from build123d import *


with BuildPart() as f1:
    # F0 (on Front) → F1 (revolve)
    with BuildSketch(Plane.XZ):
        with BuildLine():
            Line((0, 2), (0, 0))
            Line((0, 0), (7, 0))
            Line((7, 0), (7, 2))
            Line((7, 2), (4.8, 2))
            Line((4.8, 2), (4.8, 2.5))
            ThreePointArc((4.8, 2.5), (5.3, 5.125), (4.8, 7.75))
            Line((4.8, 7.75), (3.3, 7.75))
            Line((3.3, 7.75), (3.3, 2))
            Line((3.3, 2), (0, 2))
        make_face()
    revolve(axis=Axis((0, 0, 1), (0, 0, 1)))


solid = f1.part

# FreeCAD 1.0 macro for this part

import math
import FreeCAD as App
import Part
import Sketcher
Q = App.Units.Quantity

doc = App.newDocument("Part")
body = doc.addObject("PartDesign::Body", "Body")

sketch1 = body.newObject("Sketcher::SketchObject", "Sketch")
sketch1.AttachmentSupport = (doc.getObject("XZ_Plane"), [""])
sketch1.MapMode = "FlatFace"
sketch1.addGeometry([
    Part.LineSegment(App.Vector(0, 2, 0), App.Vector(0, 0, 0)),
    Part.LineSegment(App.Vector(0, 0, 0), App.Vector(7, 0, 0)),
    Part.LineSegment(App.Vector(7, 0, 0), App.Vector(7, 2, 0)),
    Part.LineSegment(App.Vector(7, 2, 0), App.Vector(4.8, 2, 0)),
    Part.LineSegment(App.Vector(4.8, 2, 0), App.Vector(4.8, 2.5, 0)),
    Part.ArcOfCircle(Part.Circle(App.Vector(-1.8, 5.1, 0), App.Vector(0, 0, 1), 7.1), math.radians(-22), math.radians(22)),
    Part.LineSegment(App.Vector(4.8, 7.8, 0), App.Vector(3.3, 7.8, 0)),
    Part.LineSegment(App.Vector(3.3, 7.8, 0), App.Vector(3.3, 2, 0)),
    Part.LineSegment(App.Vector(3.3, 2, 0), App.Vector(0, 2, 0)),
], False)
sketch1.addConstraint([
    Sketcher.Constraint("Coincident", 0, 2, 1, 1),
    Sketcher.Constraint("Coincident", 1, 2, 2, 1),
    Sketcher.Constraint("Coincident", 2, 2, 3, 1),
    Sketcher.Constraint("Coincident", 3, 2, 4, 1),
    Sketcher.Constraint("Coincident", 4, 2, 5, 1),
    Sketcher.Constraint("Coincident", 5, 2, 6, 1),
    Sketcher.Constraint("Coincident", 6, 2, 7, 1),
    Sketcher.Constraint("Coincident", 7, 2, 8, 1),
    Sketcher.Constraint("Coincident", 8, 2, 0, 1),
    Sketcher.Constraint("Vertical", 0),
    Sketcher.Constraint("Horizontal", 1),
    Sketcher.Constraint("Vertical", 2),
    Sketcher.Constraint("Horizontal", 3),
    Sketcher.Constraint("Vertical", 4),
    Sketcher.Constraint("Horizontal", 6),
    Sketcher.Constraint("Vertical", 7),
    Sketcher.Constraint("Horizontal", 8),
    Sketcher.Constraint("Coincident", 0, 2, -1, 1),
    Sketcher.Constraint("Horizontal", 3, 2, 7, 2),
    Sketcher.Constraint("Vertical", 4, 2, 5, 2),
    Sketcher.Constraint("DistanceX", 1, 1, 1, 2, Q("7 mm")),
    Sketcher.Constraint("DistanceY", 0, 2, 0, 1, Q("2 mm")),
    Sketcher.Constraint("DistanceX", 3, 2, 3, 1, Q("2.2 mm")),
    Sketcher.Constraint("DistanceX", 6, 2, 6, 1, Q("1.5 mm")),
    Sketcher.Constraint("DistanceY", 4, 1, 4, 2, Q("0.5 mm")),
    Sketcher.Constraint("DistanceY", 7, 2, 7, 1, Q("5.75 mm")),
    Sketcher.Constraint("Radius", 5, Q("7.140625 mm")),
])
revolution = body.newObject("PartDesign::Revolution", "Revolution")
revolution.Profile = sketch1
revolution.ReferenceAxis = (sketch1, ["V_Axis"])
revolution.Angle = 360

doc.recompute()
